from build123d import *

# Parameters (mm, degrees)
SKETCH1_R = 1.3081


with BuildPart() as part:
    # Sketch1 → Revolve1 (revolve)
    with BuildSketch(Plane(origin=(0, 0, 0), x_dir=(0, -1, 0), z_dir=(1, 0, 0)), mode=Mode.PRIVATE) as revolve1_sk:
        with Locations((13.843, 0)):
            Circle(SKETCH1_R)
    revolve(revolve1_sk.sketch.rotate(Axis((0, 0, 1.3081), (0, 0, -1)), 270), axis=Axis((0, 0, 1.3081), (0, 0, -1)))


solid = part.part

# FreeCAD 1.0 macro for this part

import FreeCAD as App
import Part
import Sketcher

V = App.Vector
Q = App.Units.Quantity

doc = App.newDocument("Part")
body = doc.addObject("PartDesign::Body", "Body")

sketch1 = doc.addObject("Sketcher::SketchObject", "Sketch")
body.addObject(sketch1)
sketch1.AttachmentSupport = (doc.YZ_Plane, [""])
sketch1.MapMode = "FlatFace"
sketch1.addGeometry(Part.Circle(V(-13.8, 0, 0), V(0, 0, 1), 1.3), False)
sketch1.addConstraint(Sketcher.Constraint("PointOnObject", 0, 3, -1))
sketch1.addConstraint(Sketcher.Constraint("Diameter", 0, Q("0.103 in")))
sketch1.addConstraint(Sketcher.Constraint("DistanceX", 0, 3, -1, 1, Q("0.545 in")))
revolution = doc.addObject("PartDesign::Revolution", "Revolution")
body.addObject(revolution)
revolution.Profile = sketch1
revolution.ReferenceAxis = (sketch1, ["V_Axis"])
revolution.Angle = 360

doc.recompute()
